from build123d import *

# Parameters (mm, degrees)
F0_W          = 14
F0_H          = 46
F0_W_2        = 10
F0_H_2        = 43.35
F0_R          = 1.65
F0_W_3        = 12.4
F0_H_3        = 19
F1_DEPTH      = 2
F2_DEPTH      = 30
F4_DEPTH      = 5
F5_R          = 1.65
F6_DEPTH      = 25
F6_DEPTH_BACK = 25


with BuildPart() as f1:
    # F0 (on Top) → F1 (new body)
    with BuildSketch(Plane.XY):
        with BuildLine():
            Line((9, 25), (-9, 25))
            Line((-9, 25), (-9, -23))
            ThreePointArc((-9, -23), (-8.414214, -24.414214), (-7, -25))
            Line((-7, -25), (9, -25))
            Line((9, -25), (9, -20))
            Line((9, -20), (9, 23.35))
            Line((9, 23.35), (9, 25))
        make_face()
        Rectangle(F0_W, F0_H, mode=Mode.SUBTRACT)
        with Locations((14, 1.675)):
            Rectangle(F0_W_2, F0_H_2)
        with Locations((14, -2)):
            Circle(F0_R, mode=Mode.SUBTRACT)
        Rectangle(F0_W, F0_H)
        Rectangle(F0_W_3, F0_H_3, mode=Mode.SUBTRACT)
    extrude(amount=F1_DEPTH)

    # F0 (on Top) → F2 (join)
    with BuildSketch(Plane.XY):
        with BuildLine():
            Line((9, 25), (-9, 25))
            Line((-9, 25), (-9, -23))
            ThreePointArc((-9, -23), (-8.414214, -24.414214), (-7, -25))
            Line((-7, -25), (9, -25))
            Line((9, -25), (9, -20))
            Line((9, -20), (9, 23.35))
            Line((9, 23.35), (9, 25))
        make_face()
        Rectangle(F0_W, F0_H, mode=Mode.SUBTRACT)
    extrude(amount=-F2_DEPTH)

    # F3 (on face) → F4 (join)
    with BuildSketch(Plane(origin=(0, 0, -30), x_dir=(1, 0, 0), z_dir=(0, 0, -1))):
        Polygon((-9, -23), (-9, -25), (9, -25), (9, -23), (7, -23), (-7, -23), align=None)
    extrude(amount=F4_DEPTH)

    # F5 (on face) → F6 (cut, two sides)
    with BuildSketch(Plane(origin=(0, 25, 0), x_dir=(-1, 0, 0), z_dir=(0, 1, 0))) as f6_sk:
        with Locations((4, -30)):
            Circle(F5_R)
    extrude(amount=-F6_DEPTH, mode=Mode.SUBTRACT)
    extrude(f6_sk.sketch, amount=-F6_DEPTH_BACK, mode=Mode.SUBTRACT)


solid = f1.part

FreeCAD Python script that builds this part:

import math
import FreeCAD as App
import Part
import Sketcher

V = App.Vector
Q = App.Units.Quantity

doc = App.newDocument("Part")
params = doc.addObject("Spreadsheet::Sheet", "Params")
for row, (alias, value) in enumerate([
    ("sketch1_radius", "1.999999 mm"),
    ("sketch1_diameter", "3.3 mm"),
    ("sketch1_width", "18 mm"),
    ("sketch1_width2", "10 mm"),
    ("sketch1_height", "48 mm"),
    ("pad1_length", "2 mm"),
    ("sketch2_radius", "1.999999 mm"),
    ("sketch2_width", "18 mm"),
    ("sketch2_height", "48 mm"),
    ("pad2_length", "30 mm"),
    ("sketch3_width", "18 mm"),
    ("sketch3_height", "2 mm"),
    ("pad3_length", "5 mm"),
    ("sketch4_diameter", "3.3 mm"),
    ("pocket1_length", "25 mm"),
    ("pocket2_length", "25 mm"),
], start=1):
    params.set(f"A{row}", alias)
    params.set(f"B{row}", "=" + value)
    params.setAlias(f"B{row}", alias)

body = doc.addObject("PartDesign::Body", "Body")

sketch1 = body.newObject("Sketcher::SketchObject", "Sketch")
sketch1.AttachmentSupport = (doc.getObject("XY_Plane"), [""])
sketch1.MapMode = "FlatFace"
sketch1.addGeometry([
    Part.LineSegment(V(9, 25, 0), V(-9, 25, 0)),
    Part.LineSegment(V(-9, 25, 0), V(-9, -23, 0)),
    Part.ArcOfCircle(Part.Circle(V(-7, -23, 0), V(0, 0, 1), 2), math.radians(180), math.radians(270)),
    Part.LineSegment(V(-7, -25, 0), V(9, -25, 0)),
    Part.LineSegment(V(9, -25, 0), V(9, -20, 0)),
    Part.LineSegment(V(9, -20, 0), V(19, -20, 0)),
    Part.LineSegment(V(19, -20, 0), V(19, 23.4, 0)),
    Part.LineSegment(V(19, 23.4, 0), V(9, 23.4, 0)),
    Part.LineSegment(V(9, 23.4, 0), V(9, 25, 0)),
    Part.Circle(V(14, -2, 0), V(0, 0, 1), 1.6),
    Part.LineSegment(V(6.2, -9.5, 0), V(-6.2, -9.5, 0)),
    Part.LineSegment(V(-6.2, -9.5, 0), V(-6.2, 9.5, 0)),
    Part.LineSegment(V(-6.2, 9.5, 0), V(6.2, 9.5, 0)),
    Part.LineSegment(V(6.2, 9.5, 0), V(6.2, -9.5, 0)),
], False)
sketch1.addConstraint([
    Sketcher.Constraint("Coincident", 0, 2, 1, 1),
    Sketcher.Constraint("Tangent", 1, 2, 2, 1),
    Sketcher.Constraint("Tangent", 2, 2, 3, 1),
    Sketcher.Constraint("Coincident", 3, 2, 4, 1),
    Sketcher.Constraint("Coincident", 4, 2, 5, 1),
    Sketcher.Constraint("Coincident", 5, 2, 6, 1),
    Sketcher.Constraint("Coincident", 6, 2, 7, 1),
    Sketcher.Constraint("Coincident", 7, 2, 8, 1),
    Sketcher.Constraint("Coincident", 8, 2, 0, 1),
    Sketcher.Constraint("Coincident", 10, 2, 11, 1),
    Sketcher.Constraint("Coincident", 11, 2, 12, 1),
    Sketcher.Constraint("Coincident", 12, 2, 13, 1),
    Sketcher.Constraint("Coincident", 13, 2, 10, 1),
    Sketcher.Constraint("Horizontal", 0),
    Sketcher.Constraint("Vertical", 1),
    Sketcher.Constraint("Horizontal", 3),
    Sketcher.Constraint("Vertical", 4),
    Sketcher.Constraint("Horizontal", 5),
    Sketcher.Constraint("Vertical", 6),
    Sketcher.Constraint("Horizontal", 7),
    Sketcher.Constraint("Vertical", 8),
    Sketcher.Constraint("Horizontal", 10),
    Sketcher.Constraint("Vertical", 11),
    Sketcher.Constraint("Horizontal", 12),
    Sketcher.Constraint("Vertical", 13),
    Sketcher.Constraint("Symmetric", 0, 2, 3, 2, -1, 1),
    Sketcher.Constraint("Symmetric", 10, 2, 12, 2, -1, 1),
    Sketcher.Constraint("Vertical", 4, 2, 7, 2),
    Sketcher.Constraint("Radius", 2, Q("1.999999 mm")),
    Sketcher.Constraint("Diameter", 9, Q("3.3 mm")),
    Sketcher.Constraint("DistanceX", 0, 2, 0, 1, Q("18 mm")),
    Sketcher.Constraint("DistanceX", 5, 1, 5, 2, Q("10 mm")),
    Sketcher.Constraint("DistanceY", 1, 2, 1, 1, Q("48 mm")),
    Sketcher.Constraint("DistanceY", 4, 1, 4, 2, Q("5 mm")),
    Sketcher.Constraint("DistanceY", 11, 1, 11, 2, Q("19 mm")),
    Sketcher.Constraint("DistanceX", 10, 2, 10, 1, Q("12.4 mm")),
    Sketcher.Constraint("DistanceX", -1, 1, 9, 3, Q("14 mm")),
    Sketcher.Constraint("DistanceY", 9, 3, -1, 1, Q("2 mm")),
    Sketcher.Constraint("DistanceY", 6, 1, 6, 2, Q("43.35 mm")),
])
sketch1.setExpression("Constraints[28]", "Params.sketch1_radius")
sketch1.setExpression("Constraints[29]", "Params.sketch1_diameter")
sketch1.setExpression("Constraints[30]", "Params.sketch1_width")
sketch1.setExpression("Constraints[31]", "Params.sketch1_width2")
sketch1.setExpression("Constraints[32]", "Params.sketch1_height")
pad1 = body.newObject("PartDesign::Pad", "Pad")
pad1.Profile = sketch1
pad1.setExpression("Length", "Params.pad1_length")

sketch2 = body.newObject("Sketcher::SketchObject", "Sketch001")
sketch2.AttachmentSupport = (doc.getObject("XY_Plane"), [""])
sketch2.MapMode = "FlatFace"
sketch2.addGeometry([
    Part.LineSegment(V(9, 25, 0), V(-9, 25, 0)),
    Part.LineSegment(V(-9, 25, 0), V(-9, -23, 0)),
    Part.ArcOfCircle(Part.Circle(V(-7, -23, 0), V(0, 0, 1), 2), math.radians(180), math.radians(270)),
    Part.LineSegment(V(-7, -25, 0), V(9, -25, 0)),
    Part.LineSegment(V(9, -25, 0), V(9, 25, 0)),
    Part.LineSegment(V(7, -23, 0), V(-7, -23, 0)),
    Part.LineSegment(V(-7, -23, 0), V(-7, 23, 0)),
    Part.LineSegment(V(-7, 23, 0), V(7, 23, 0)),
    Part.LineSegment(V(7, 23, 0), V(7, -23, 0)),
], False)
sketch2.addConstraint([
    Sketcher.Constraint("Coincident", 0, 2, 1, 1),
    Sketcher.Constraint("Tangent", 1, 2, 2, 1),
    Sketcher.Constraint("Tangent", 2, 2, 3, 1),
    Sketcher.Constraint("Coincident", 3, 2, 4, 1),
    Sketcher.Constraint("Coincident", 4, 2, 0, 1),
    Sketcher.Constraint("Coincident", 5, 2, 6, 1),
    Sketcher.Constraint("Coincident", 6, 2, 7, 1),
    Sketcher.Constraint("Coincident", 7, 2, 8, 1),
    Sketcher.Constraint("Coincident", 8, 2, 5, 1),
    Sketcher.Constraint("Horizontal", 0),
    Sketcher.Constraint("Vertical", 1),
    Sketcher.Constraint("Horizontal", 3),
    Sketcher.Constraint("Vertical", 4),
    Sketcher.Constraint("Horizontal", 5),
    Sketcher.Constraint("Vertical", 6),
    Sketcher.Constraint("Horizontal", 7),
    Sketcher.Constraint("Vertical", 8),
    Sketcher.Constraint("Coincident", 5, 2, 2, 3),
    Sketcher.Constraint("Symmetric", 0, 2, 3, 2, -1, 1),
    Sketcher.Constraint("Symmetric", 5, 2, 7, 2, -1, 1),
    Sketcher.Constraint("Radius", 2, Q("1.999999 mm")),
    Sketcher.Constraint("DistanceX", 0, 2, 0, 1, Q("18 mm")),
    Sketcher.Constraint("DistanceY", 1, 2, 1, 1, Q("48 mm")),
])
sketch2.setExpression("Constraints[20]", "Params.sketch2_radius")
sketch2.setExpression("Constraints[21]", "Params.sketch2_width")
sketch2.setExpression("Constraints[22]", "Params.sketch2_height")
pad2 = body.newObject("PartDesign::Pad", "Pad001")
pad2.Profile = sketch2
pad2.setExpression("Length", "Params.pad2_length")
pad2.Reversed = True

sketch3 = body.newObject("Sketcher::SketchObject", "Sketch002")
sketch3.AttachmentSupport = (doc.getObject("XY_Plane"), [""])
sketch3.MapMode = "FlatFace"
sketch3.AttachmentOffset = App.Placement(V(0, 0, -30), App.Rotation())
sketch3.addGeometry([
    Part.LineSegment(V(-9, 23, 0), V(-9, 25, 0)),
    Part.LineSegment(V(-9, 25, 0), V(9, 25, 0)),
    Part.LineSegment(V(9, 25, 0), V(9, 23, 0)),
    Part.LineSegment(V(9, 23, 0), V(-9, 23, 0)),
], False)
sketch3.addConstraint([
    Sketcher.Constraint("Coincident", 0, 2, 1, 1),
    Sketcher.Constraint("Coincident", 1, 2, 2, 1),
    Sketcher.Constraint("Coincident", 2, 2, 3, 1),
    Sketcher.Constraint("Coincident", 3, 2, 0, 1),
    Sketcher.Constraint("Vertical", 0),
    Sketcher.Constraint("Horizontal", 1),
    Sketcher.Constraint("Vertical", 2),
    Sketcher.Constraint("Horizontal", 3),
    Sketcher.Constraint("DistanceX", 1, 1, 1, 2, Q("18 mm")),
    Sketcher.Constraint("DistanceY", 0, 1, 0, 2, Q("2 mm")),
    Sketcher.Constraint("DistanceX", 0, 2, -1, 1, Q("9 mm")),
    Sketcher.Constraint("DistanceY", -1, 1, 0, 2, Q("25 mm")),
])
sketch3.setExpression("Constraints[8]", "Params.sketch3_width")
sketch3.setExpression("Constraints[9]", "Params.sketch3_height")
pad3 = body.newObject("PartDesign::Pad", "Pad002")
pad3.Profile = sketch3
pad3.setExpression("Length", "Params.pad3_length")
pad3.Reversed = True

sketch4 = body.newObject("Sketcher::SketchObject", "Sketch003")
sketch4.AttachmentSupport = (doc.getObject("XZ_Plane"), [""])
sketch4.MapMode = "FlatFace"
sketch4.AttachmentOffset = App.Placement(V(0, 0, -25), App.Rotation())
sketch4.addGeometry(Part.Circle(V(-4, -30, 0), V(0, 0, 1), 1.6), False)
sketch4.addConstraint([
    Sketcher.Constraint("Diameter", 0, Q("3.3 mm")),
    Sketcher.Constraint("DistanceX", 0, 3, -1, 1, Q("4 mm")),
    Sketcher.Constraint("DistanceY", 0, 3, -1, 1, Q("30 mm")),
])
sketch4.setExpression("Constraints[0]", "Params.sketch4_diameter")
pocket1 = body.newObject("PartDesign::Pocket", "Pocket")
pocket1.Profile = sketch4
pocket1.setExpression("Length", "Params.pocket1_length")
pocket1.Reversed = True
pocket2 = body.newObject("PartDesign::Pocket", "Pocket001")
pocket2.Profile = sketch4
pocket2.setExpression("Length", "Params.pocket2_length")
pocket2.Reversed = True

doc.recompute()
